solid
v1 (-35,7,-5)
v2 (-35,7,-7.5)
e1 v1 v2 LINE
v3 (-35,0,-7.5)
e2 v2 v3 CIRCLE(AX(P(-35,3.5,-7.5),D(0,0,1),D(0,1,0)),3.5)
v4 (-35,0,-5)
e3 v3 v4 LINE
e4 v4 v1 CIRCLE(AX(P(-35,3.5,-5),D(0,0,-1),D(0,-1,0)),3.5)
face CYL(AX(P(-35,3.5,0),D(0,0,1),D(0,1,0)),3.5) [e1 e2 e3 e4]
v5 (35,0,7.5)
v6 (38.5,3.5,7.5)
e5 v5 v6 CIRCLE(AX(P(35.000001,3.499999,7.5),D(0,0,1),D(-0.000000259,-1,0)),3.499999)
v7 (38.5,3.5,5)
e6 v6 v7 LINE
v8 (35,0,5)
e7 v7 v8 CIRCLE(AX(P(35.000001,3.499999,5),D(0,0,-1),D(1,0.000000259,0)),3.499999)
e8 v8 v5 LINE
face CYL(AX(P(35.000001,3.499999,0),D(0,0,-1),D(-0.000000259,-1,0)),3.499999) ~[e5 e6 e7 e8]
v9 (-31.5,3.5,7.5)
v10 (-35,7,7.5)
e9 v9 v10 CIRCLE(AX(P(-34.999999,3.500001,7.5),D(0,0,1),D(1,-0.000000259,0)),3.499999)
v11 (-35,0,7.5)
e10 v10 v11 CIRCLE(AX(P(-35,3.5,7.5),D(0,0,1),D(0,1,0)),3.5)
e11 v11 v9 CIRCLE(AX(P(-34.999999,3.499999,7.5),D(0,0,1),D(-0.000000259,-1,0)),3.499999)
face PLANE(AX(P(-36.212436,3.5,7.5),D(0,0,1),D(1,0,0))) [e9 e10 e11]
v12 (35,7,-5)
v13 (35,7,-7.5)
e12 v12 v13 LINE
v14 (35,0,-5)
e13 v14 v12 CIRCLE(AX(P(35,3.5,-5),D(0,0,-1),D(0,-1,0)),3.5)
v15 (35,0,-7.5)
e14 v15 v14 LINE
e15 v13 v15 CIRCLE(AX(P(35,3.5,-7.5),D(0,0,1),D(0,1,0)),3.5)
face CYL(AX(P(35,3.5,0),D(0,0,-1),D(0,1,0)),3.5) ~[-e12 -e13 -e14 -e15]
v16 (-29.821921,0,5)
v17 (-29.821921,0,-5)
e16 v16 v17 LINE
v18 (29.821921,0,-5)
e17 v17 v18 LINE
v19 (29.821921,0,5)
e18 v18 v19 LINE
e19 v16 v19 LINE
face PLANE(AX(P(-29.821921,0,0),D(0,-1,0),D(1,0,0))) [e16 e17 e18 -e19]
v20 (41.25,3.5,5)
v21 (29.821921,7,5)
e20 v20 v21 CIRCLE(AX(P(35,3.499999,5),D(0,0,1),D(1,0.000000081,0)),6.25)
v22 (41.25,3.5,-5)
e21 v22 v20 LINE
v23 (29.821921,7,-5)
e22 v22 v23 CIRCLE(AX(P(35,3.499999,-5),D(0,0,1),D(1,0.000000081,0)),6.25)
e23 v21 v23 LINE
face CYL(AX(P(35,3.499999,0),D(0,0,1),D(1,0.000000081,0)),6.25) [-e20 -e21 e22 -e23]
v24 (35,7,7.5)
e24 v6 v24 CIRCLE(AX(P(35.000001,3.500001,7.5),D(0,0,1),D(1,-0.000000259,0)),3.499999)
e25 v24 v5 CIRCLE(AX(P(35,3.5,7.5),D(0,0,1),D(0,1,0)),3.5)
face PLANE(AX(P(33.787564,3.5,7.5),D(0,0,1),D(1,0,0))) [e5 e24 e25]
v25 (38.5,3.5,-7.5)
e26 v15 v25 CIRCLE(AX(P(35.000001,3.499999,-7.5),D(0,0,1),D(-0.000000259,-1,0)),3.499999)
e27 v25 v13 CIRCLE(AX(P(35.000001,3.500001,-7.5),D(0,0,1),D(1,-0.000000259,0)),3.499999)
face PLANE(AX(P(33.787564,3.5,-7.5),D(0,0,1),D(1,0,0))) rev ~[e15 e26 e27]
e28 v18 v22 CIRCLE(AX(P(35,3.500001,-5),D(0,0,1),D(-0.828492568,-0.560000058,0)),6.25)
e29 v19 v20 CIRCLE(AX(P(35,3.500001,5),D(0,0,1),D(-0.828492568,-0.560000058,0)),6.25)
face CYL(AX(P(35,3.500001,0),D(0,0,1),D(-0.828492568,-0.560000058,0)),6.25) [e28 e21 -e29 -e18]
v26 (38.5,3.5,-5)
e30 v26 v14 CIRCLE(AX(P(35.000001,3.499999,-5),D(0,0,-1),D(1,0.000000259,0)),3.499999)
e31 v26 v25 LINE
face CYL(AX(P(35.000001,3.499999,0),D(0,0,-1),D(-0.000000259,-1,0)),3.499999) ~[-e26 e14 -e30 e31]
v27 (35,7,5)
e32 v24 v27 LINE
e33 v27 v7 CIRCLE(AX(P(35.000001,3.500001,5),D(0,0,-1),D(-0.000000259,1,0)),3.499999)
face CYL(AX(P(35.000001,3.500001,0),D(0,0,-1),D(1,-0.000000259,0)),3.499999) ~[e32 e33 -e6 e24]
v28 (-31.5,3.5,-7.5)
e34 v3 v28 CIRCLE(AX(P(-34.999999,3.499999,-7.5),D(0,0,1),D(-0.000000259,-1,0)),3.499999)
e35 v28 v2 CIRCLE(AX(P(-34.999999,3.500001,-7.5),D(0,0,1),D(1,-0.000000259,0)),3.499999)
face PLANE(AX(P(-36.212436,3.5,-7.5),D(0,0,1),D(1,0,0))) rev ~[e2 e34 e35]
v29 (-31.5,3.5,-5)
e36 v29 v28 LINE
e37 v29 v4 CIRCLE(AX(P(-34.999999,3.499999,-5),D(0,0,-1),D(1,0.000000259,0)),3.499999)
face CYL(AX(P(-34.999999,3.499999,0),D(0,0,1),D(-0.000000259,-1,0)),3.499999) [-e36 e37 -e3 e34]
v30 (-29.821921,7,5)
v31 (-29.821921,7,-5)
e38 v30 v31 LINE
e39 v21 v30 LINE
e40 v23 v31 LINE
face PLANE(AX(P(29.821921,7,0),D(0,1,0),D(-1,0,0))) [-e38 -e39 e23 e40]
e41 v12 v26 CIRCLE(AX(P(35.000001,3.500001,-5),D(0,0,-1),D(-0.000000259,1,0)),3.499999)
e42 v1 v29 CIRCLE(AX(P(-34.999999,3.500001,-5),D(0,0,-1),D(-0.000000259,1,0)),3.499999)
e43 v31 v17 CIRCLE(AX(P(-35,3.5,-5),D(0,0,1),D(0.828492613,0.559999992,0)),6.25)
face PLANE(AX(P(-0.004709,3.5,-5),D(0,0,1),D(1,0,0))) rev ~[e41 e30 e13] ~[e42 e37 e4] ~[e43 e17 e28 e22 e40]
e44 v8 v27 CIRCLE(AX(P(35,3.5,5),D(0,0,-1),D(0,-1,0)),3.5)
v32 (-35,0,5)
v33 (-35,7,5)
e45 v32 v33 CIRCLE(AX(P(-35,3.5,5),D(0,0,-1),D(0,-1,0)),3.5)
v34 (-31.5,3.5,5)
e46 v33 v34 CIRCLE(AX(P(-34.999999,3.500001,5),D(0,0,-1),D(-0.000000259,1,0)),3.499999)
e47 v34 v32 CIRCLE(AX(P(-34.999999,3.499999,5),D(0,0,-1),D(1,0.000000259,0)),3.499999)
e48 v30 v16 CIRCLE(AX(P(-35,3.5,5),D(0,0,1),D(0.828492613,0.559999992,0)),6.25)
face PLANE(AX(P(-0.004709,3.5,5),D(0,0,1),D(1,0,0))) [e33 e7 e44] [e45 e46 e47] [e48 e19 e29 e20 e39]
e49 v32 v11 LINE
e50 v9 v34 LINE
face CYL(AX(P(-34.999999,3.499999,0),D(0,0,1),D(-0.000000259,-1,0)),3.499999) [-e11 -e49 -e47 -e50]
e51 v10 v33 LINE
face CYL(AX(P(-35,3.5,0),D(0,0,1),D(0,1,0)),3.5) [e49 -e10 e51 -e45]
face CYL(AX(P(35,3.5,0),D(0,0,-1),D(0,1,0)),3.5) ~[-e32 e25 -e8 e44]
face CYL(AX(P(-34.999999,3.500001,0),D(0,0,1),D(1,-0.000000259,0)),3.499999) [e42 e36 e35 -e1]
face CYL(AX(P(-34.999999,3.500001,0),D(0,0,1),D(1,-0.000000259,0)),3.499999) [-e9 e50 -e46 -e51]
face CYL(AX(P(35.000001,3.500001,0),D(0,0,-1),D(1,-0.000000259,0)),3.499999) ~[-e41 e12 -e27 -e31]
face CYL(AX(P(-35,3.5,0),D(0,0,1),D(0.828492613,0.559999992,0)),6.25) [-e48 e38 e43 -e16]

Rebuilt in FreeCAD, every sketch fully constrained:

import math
import FreeCAD as App
import Part
import Sketcher
Q = App.Units.Quantity

doc = App.newDocument("Part")
body = doc.addObject("PartDesign::Body", "Body")

# Sketch on XY plane
sketch1 = body.newObject("Sketcher::SketchObject", "Sketch")
sketch1.AttachmentSupport = (doc.getObject("XY_Plane"), [""])
sketch1.MapMode = "FlatFace"
sketch1.addGeometry([
    Part.LineSegment(App.Vector(-29.8, 0, 0), App.Vector(29.8, 0, 0)),  # 0
    Part.ArcOfCircle(Part.Circle(App.Vector(35, 3.5, 0), App.Vector(0, 0, 1), 6.3), math.radians(-146), math.radians(0)),  # 1
    Part.ArcOfCircle(Part.Circle(App.Vector(35, 3.5, 0), App.Vector(0, 0, 1), 6.3), math.radians(0), math.radians(146)),  # 2
    Part.LineSegment(App.Vector(29.8, 7, 0), App.Vector(-29.8, 7, 0)),  # 3
    Part.ArcOfCircle(Part.Circle(App.Vector(-35, 3.5, 0), App.Vector(0, 0, 1), 6.3), math.radians(34), math.radians(326)),  # 4
    Part.ArcOfCircle(Part.Circle(App.Vector(35, 3.5, 0), App.Vector(0, 0, 1), 3.5), math.radians(90), math.radians(270)),  # 5
    Part.ArcOfCircle(Part.Circle(App.Vector(35, 3.5, 0), App.Vector(0, 0, 1), 3.5), math.radians(0), math.radians(90)),  # 6
    Part.ArcOfCircle(Part.Circle(App.Vector(35, 3.5, 0), App.Vector(0, 0, 1), 3.5), math.radians(-90), math.radians(0)),  # 7
    Part.ArcOfCircle(Part.Circle(App.Vector(-35, 3.5, 0), App.Vector(0, 0, 1), 3.5), math.radians(0), math.radians(90)),  # 8
    Part.ArcOfCircle(Part.Circle(App.Vector(-35, 3.5, 0), App.Vector(0, 0, 1), 3.5), math.radians(-90), math.radians(0)),  # 9
    Part.ArcOfCircle(Part.Circle(App.Vector(-35, 3.5, 0), App.Vector(0, 0, 1), 3.5), math.radians(90), math.radians(270)),  # 10
], False)
sketch1.addConstraint([
    Sketcher.Constraint("Coincident", 0, 2, 1, 1),
    Sketcher.Constraint("Tangent", 1, 2, 2, 1),
    Sketcher.Constraint("Coincident", 2, 2, 3, 1),
    Sketcher.Constraint("Coincident", 3, 2, 4, 1),
    Sketcher.Constraint("Coincident", 4, 2, 0, 1),
    Sketcher.Constraint("Tangent", 5, 1, 6, 2),
    Sketcher.Constraint("Tangent", 6, 1, 7, 2),
    Sketcher.Constraint("Tangent", 7, 1, 5, 2),
    Sketcher.Constraint("Tangent", 8, 1, 9, 2),
    Sketcher.Constraint("Tangent", 9, 1, 10, 2),
    Sketcher.Constraint("Tangent", 10, 1, 8, 2),
    Sketcher.Constraint("Horizontal", 0),
    Sketcher.Constraint("Horizontal", 3),
    Sketcher.Constraint("Coincident", 5, 3, 1, 3),
    Sketcher.Constraint("Coincident", 8, 3, 4, 3),
    Sketcher.Constraint("Equal", 1, 2),
    Sketcher.Constraint("Equal", 2, 4),
    Sketcher.Constraint("Equal", 7, 8),
    Sketcher.Constraint("Symmetric", 0, 2, 4, 2, -1, 1),
    Sketcher.Constraint("Symmetric", 7, 1, 9, 1, -1, 1),
    Sketcher.Constraint("Symmetric", 5, 1, 10, 1, -2),
    Sketcher.Constraint("Horizontal", 10, 3, 1, 2),
    Sketcher.Constraint("Horizontal", 3, 2, 5, 1),
    Sketcher.Constraint("Horizontal", 1, 2, 6, 1),
    Sketcher.Constraint("Horizontal", 6, 1, 8, 1),
    Sketcher.Constraint("Vertical", 7, 3, 5, 1),
    Sketcher.Constraint("Vertical", 5, 1, 7, 1),
    Sketcher.Constraint("Radius", 5, Q("3.5 mm")),
    Sketcher.Constraint("Radius", 1, Q("6.25 mm")),
    Sketcher.Constraint("DistanceX", -1, 1, 1, 3, Q("35 mm")),
])
pad1 = body.newObject("PartDesign::Pad", "Pad")
pad1.Profile = sketch1
pad1.Length = 10
pad1.Midplane = True

# Sketch on XY plane
sketch2 = body.newObject("Sketcher::SketchObject", "Sketch001")
sketch2.AttachmentSupport = (doc.getObject("XY_Plane"), [""])
sketch2.MapMode = "FlatFace"
sketch2.addGeometry([
    Part.ArcOfCircle(Part.Circle(App.Vector(35, 3.5, 0), App.Vector(0, 0, 1), 3.5), math.radians(90), math.radians(270)),  # 0
    Part.ArcOfCircle(Part.Circle(App.Vector(35, 3.5, 0), App.Vector(0, 0, 1), 3.5), math.radians(-90), math.radians(0)),  # 1
    Part.ArcOfCircle(Part.Circle(App.Vector(35, 3.5, 0), App.Vector(0, 0, 1), 3.5), math.radians(0), math.radians(90)),  # 2
    Part.ArcOfCircle(Part.Circle(App.Vector(-35, 3.5, 0), App.Vector(0, 0, 1), 3.5), math.radians(90), math.radians(270)),  # 3
    Part.ArcOfCircle(Part.Circle(App.Vector(-35, 3.5, 0), App.Vector(0, 0, 1), 3.5), math.radians(-90), math.radians(0)),  # 4
    Part.ArcOfCircle(Part.Circle(App.Vector(-35, 3.5, 0), App.Vector(0, 0, 1), 3.5), math.radians(0), math.radians(90)),  # 5
], False)
sketch2.addConstraint([
    Sketcher.Constraint("Tangent", 0, 2, 1, 1),
    Sketcher.Constraint("Tangent", 1, 2, 2, 1),
    Sketcher.Constraint("Tangent", 2, 2, 0, 1),
    Sketcher.Constraint("Tangent", 3, 2, 4, 1),
    Sketcher.Constraint("Tangent", 4, 2, 5, 1),
    Sketcher.Constraint("Tangent", 5, 2, 3, 1),
    Sketcher.Constraint("Equal", 2, 3),
    Sketcher.Constraint("Symmetric", 0, 2, 3, 2, -1, 1),
    Sketcher.Constraint("Symmetric", 0, 3, 3, 3, -2),
    Sketcher.Constraint("Horizontal", 5, 3, 1, 2),
    Sketcher.Constraint("Horizontal", 1, 2, 4, 2),
    Sketcher.Constraint("Vertical", 2, 3, 0, 2),
    Sketcher.Constraint("Vertical", 0, 2, 2, 2),
    Sketcher.Constraint("Vertical", 3, 2, 5, 2),
    Sketcher.Constraint("Radius", 0, Q("3.5 mm")),
    Sketcher.Constraint("DistanceX", -1, 1, 0, 3, Q("35 mm")),
])
pad2 = body.newObject("PartDesign::Pad", "Pad001")
pad2.Profile = sketch2
pad2.Length = 15
pad2.Midplane = True

doc.recompute()
